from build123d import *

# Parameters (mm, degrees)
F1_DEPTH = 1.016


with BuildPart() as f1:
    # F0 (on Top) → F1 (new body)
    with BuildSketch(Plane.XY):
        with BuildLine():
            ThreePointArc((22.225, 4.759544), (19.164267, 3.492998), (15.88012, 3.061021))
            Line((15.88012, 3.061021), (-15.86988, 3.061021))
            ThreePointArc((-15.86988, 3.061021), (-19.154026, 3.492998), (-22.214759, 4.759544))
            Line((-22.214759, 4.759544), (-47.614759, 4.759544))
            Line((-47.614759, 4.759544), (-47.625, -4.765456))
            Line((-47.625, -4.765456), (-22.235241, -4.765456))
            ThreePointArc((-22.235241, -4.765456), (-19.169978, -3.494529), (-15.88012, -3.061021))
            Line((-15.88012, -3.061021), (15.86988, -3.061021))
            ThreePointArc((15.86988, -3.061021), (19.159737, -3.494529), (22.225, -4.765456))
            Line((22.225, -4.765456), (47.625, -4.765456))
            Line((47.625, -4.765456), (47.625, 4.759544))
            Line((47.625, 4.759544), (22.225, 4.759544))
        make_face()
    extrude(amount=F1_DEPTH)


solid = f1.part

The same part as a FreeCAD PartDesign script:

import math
import FreeCAD as App
import Part
import Sketcher
Q = App.Units.Quantity

doc = App.newDocument("Part")
body = doc.addObject("PartDesign::Body", "Body")

# Sketch on XY plane
sketch1 = doc.addObject("Sketcher::SketchObject", "Sketch")
body.addObject(sketch1)
sketch1.AttachmentSupport = (doc.XY_Plane, [""])
sketch1.MapMode = "FlatFace"
sketch1.addGeometry([
    Part.ArcOfCircle(Part.Circle(App.Vector(16, 16, 0), App.Vector(0, 0, 1), 13), math.radians(-90), math.radians(-60)),  # 0
    Part.LineSegment(App.Vector(16, 3, 0), App.Vector(-16, 3, 0)),  # 1
    Part.ArcOfCircle(Part.Circle(App.Vector(-16, 16, 0), App.Vector(0, 0, 1), 13), math.radians(-120), math.radians(-90)),  # 2
    Part.LineSegment(App.Vector(-22, 5, 0), App.Vector(-48, 5, 0)),  # 3
    Part.LineSegment(App.Vector(-48, 5, 0), App.Vector(-48, -5, 0)),  # 4
    Part.LineSegment(App.Vector(-48, -5, 0), App.Vector(-22, -5, 0)),  # 5
    Part.ArcOfCircle(Part.Circle(App.Vector(-16, -16, 0), App.Vector(0, 0, 1), 13), math.radians(90), math.radians(120)),  # 6
    Part.LineSegment(App.Vector(-16, -3, 0), App.Vector(16, -3, 0)),  # 7
    Part.ArcOfCircle(Part.Circle(App.Vector(16, -16, 0), App.Vector(0, 0, 1), 13), math.radians(60), math.radians(90)),  # 8
    Part.LineSegment(App.Vector(22, -5, 0), App.Vector(48, -5, 0)),  # 9
    Part.LineSegment(App.Vector(48, -5, 0), App.Vector(48, 5, 0)),  # 10
    Part.LineSegment(App.Vector(48, 5, 0), App.Vector(22, 5, 0)),  # 11
], False)
sketch1.addConstraint([
    Sketcher.Constraint("Tangent", 0, 1, 1, 1),
    Sketcher.Constraint("Tangent", 1, 2, 2, 2),
    Sketcher.Constraint("Coincident", 2, 1, 3, 1),
    Sketcher.Constraint("Coincident", 3, 2, 4, 1),
    Sketcher.Constraint("Coincident", 4, 2, 5, 1),
    Sketcher.Constraint("Coincident", 5, 2, 6, 2),
    Sketcher.Constraint("Tangent", 6, 1, 7, 1),
    Sketcher.Constraint("Tangent", 7, 2, 8, 2),
    Sketcher.Constraint("Coincident", 8, 1, 9, 1),
    Sketcher.Constraint("Coincident", 9, 2, 10, 1),
    Sketcher.Constraint("Coincident", 10, 2, 11, 1),
    Sketcher.Constraint("Coincident", 11, 2, 0, 2),
    Sketcher.Constraint("Horizontal", 1),
    Sketcher.Constraint("Horizontal", 3),
    Sketcher.Constraint("Horizontal", 5),
    Sketcher.Constraint("Horizontal", 7),
    Sketcher.Constraint("Horizontal", 9),
    Sketcher.Constraint("Vertical", 10),
    Sketcher.Constraint("Horizontal", 11),
    Sketcher.Constraint("Equal", 0, 2),
    Sketcher.Constraint("Equal", 6, 8),
    Sketcher.Constraint("Symmetric", 0, 1, 6, 1, -1, 1),
    Sketcher.Constraint("Symmetric", 4, 2, 9, 2, -2),
    Sketcher.Constraint("Horizontal", 3, 2, 10, 2),
    Sketcher.Constraint("Vertical", 8, 1, 11, 2),
    Sketcher.Constraint("Equal", 1, 7),
    Sketcher.Constraint("Equal", 3, 9),
    Sketcher.Constraint("DistanceX", 3, 2, 3, 1, Q("1 in")),
    Sketcher.Constraint("DistanceX", 1, 2, 1, 1, Q("1.25 in")),
    Sketcher.Constraint("DistanceY", 10, 1, 10, 2, Q("0.375 in")),
    Sketcher.Constraint("DistanceX", 4, 2, -1, 1, Q("1.875 in")),
    Sketcher.Constraint("Radius", 0, Q("12.699988 mm")),
    Sketcher.Constraint("Radius", 6, Q("12.700017 mm")),
    Sketcher.Constraint("DistanceX", 5, 1, 5, 2, Q("25.389759 mm")),
])
pad1 = doc.addObject("PartDesign::Pad", "Pad")
body.addObject(pad1)
pad1.Profile = sketch1
pad1.Length = Q("0.04 in")

doc.recompute()
